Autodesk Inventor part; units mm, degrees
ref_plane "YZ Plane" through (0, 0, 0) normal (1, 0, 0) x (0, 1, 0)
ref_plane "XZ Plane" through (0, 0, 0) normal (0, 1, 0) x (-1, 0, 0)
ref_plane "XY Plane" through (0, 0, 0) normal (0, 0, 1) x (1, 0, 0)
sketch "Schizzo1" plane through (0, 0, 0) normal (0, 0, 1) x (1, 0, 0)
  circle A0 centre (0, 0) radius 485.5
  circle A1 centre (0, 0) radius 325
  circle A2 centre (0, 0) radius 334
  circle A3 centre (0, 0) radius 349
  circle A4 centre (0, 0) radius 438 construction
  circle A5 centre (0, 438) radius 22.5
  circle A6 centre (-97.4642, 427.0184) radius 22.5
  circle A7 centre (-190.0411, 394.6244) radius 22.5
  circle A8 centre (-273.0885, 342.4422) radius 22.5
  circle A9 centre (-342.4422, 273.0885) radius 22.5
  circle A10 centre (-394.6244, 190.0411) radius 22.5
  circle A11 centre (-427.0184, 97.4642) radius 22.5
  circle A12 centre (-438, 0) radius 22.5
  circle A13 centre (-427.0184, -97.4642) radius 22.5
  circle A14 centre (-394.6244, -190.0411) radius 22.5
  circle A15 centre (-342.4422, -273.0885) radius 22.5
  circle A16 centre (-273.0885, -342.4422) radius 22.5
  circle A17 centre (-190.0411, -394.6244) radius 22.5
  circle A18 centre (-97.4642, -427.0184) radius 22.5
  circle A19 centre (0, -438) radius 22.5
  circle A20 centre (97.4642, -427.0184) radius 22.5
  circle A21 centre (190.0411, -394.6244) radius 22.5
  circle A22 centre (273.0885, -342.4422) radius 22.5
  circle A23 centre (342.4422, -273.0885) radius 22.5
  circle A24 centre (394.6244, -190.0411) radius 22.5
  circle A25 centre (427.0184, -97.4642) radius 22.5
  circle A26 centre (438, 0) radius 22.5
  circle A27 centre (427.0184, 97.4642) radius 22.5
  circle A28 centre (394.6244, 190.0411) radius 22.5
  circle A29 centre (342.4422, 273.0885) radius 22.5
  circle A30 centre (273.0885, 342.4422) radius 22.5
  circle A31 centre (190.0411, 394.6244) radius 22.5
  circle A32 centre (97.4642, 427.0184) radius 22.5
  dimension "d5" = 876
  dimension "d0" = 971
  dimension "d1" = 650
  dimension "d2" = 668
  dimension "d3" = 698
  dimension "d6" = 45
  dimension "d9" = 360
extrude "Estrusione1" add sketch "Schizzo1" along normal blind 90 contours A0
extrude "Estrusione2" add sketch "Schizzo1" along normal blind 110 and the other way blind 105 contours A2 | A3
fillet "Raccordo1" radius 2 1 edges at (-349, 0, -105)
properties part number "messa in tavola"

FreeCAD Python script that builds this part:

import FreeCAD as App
import Part
import Sketcher
Q = App.Units.Quantity


def edges_at(feature, points):
    """Names of the edges that pass closest to the given points."""
    edges = feature.Shape.Edges
    near = lambda p: min(range(len(edges)), key=lambda i: edges[i].distToShape(Part.Vertex(*p))[0])
    return sorted({f"Edge{near(p) + 1}" for p in points})

doc = App.newDocument("Part")
params = doc.addObject("Spreadsheet::Sheet", "Params")
for row, (alias, value) in enumerate([
    ("sketch1_diameter", "971 mm"),
    ("sketch1_diameter2", "45 mm"),
    ("sketch1_diameter3", "698 mm"),
    ("pad1_length", "90 mm"),
    ("sketch2_diameter", "698 mm"),
    ("sketch2_diameter2", "650 mm"),
    ("pad2_length", "110 mm"),
    ("pad2_length2", "105 mm"),
    ("fillet_radius", "2 mm"),
], start=1):
    params.set(f"A{row}", alias)
    params.set(f"B{row}", "=" + value)
    params.setAlias(f"B{row}", alias)

body = doc.addObject("PartDesign::Body", "Body")

sketch1 = body.newObject("Sketcher::SketchObject", "Sketch")
sketch1.AttachmentSupport = (doc.getObject("XY_Plane"), [""])
sketch1.MapMode = "FlatFace"
sketch1.addGeometry(Part.Circle(App.Vector(0, 0, 0), App.Vector(0, 0, 1), 485.5), False)
sketch1.addGeometry(Part.Circle(App.Vector(-273.0885, -342.4422, 0), App.Vector(0, 0, 1), 22.5), False)
sketch1.addGeometry(Part.Circle(App.Vector(-342.4422, -273.0885, 0), App.Vector(0, 0, 1), 22.5), False)
sketch1.addGeometry(Part.Circle(App.Vector(-190.0411, -394.6244, 0), App.Vector(0, 0, 1), 22.5), False)
sketch1.addGeometry(Part.Circle(App.Vector(-97.4642, -427.0184, 0), App.Vector(0, 0, 1), 22.5), False)
sketch1.addGeometry(Part.Circle(App.Vector(-394.6244, -190.0411, 0), App.Vector(0, 0, 1), 22.5), False)
sketch1.addGeometry(Part.Circle(App.Vector(-427.0184, -97.4642, 0), App.Vector(0, 0, 1), 22.5), False)
sketch1.addGeometry(Part.Circle(App.Vector(0, -438, 0), App.Vector(0, 0, 1), 22.5), False)
sketch1.addGeometry(Part.Circle(App.Vector(97.4642, -427.0184, 0), App.Vector(0, 0, 1), 22.5), False)
sketch1.addGeometry(Part.Circle(App.Vector(190.0411, -394.6244, 0), App.Vector(0, 0, 1), 22.5), False)
sketch1.addGeometry(Part.Circle(App.Vector(273.0885, -342.4422, 0), App.Vector(0, 0, 1), 22.5), False)
sketch1.addGeometry(Part.Circle(App.Vector(342.4422, -273.0885, 0), App.Vector(0, 0, 1), 22.5), False)
sketch1.addGeometry(Part.Circle(App.Vector(394.6244, -190.0411, 0), App.Vector(0, 0, 1), 22.5), False)
sketch1.addGeometry(Part.Circle(App.Vector(427.0184, -97.4642, 0), App.Vector(0, 0, 1), 22.5), False)
sketch1.addGeometry(Part.Circle(App.Vector(-438, 0, 0), App.Vector(0, 0, 1), 22.5), False)
sketch1.addGeometry(Part.Circle(App.Vector(-427.0184, 97.4642, 0), App.Vector(0, 0, 1), 22.5), False)
sketch1.addGeometry(Part.Circle(App.Vector(-394.6244, 190.0411, 0), App.Vector(0, 0, 1), 22.5), False)
sketch1.addGeometry(Part.Circle(App.Vector(-342.4422, 273.0885, 0), App.Vector(0, 0, 1), 22.5), False)
sketch1.addGeometry(Part.Circle(App.Vector(-273.0885, 342.4422, 0), App.Vector(0, 0, 1), 22.5), False)
sketch1.addGeometry(Part.Circle(App.Vector(-190.0411, 394.6244, 0), App.Vector(0, 0, 1), 22.5), False)
sketch1.addGeometry(Part.Circle(App.Vector(-97.4642, 427.0184, 0), App.Vector(0, 0, 1), 22.5), False)
sketch1.addGeometry(Part.Circle(App.Vector(0, 0, 0), App.Vector(0, 0, 1), 349), False)
sketch1.addGeometry(Part.Circle(App.Vector(438, 0, 0), App.Vector(0, 0, 1), 22.5), False)
sketch1.addGeometry(Part.Circle(App.Vector(427.0184, 97.4642, 0), App.Vector(0, 0, 1), 22.5), False)
sketch1.addGeometry(Part.Circle(App.Vector(394.6244, 190.0411, 0), App.Vector(0, 0, 1), 22.5), False)
sketch1.addGeometry(Part.Circle(App.Vector(0, 438, 0), App.Vector(0, 0, 1), 22.5), False)
sketch1.addGeometry(Part.Circle(App.Vector(97.4642, 427.0184, 0), App.Vector(0, 0, 1), 22.5), False)
sketch1.addGeometry(Part.Circle(App.Vector(190.0411, 394.6244, 0), App.Vector(0, 0, 1), 22.5), False)
sketch1.addGeometry(Part.Circle(App.Vector(342.4422, 273.0885, 0), App.Vector(0, 0, 1), 22.5), False)
sketch1.addGeometry(Part.Circle(App.Vector(273.0885, 342.4422, 0), App.Vector(0, 0, 1), 22.5), False)
sketch1.addConstraint(Sketcher.Constraint("Coincident", 0, 3, -1, 1))
sketch1.addConstraint(Sketcher.Constraint("Coincident", 21, 3, -1, 1))
sketch1.addConstraint(Sketcher.Constraint("Equal", 1, 2))
sketch1.addConstraint(Sketcher.Constraint("Equal", 2, 3))
sketch1.addConstraint(Sketcher.Constraint("Equal", 3, 4))
sketch1.addConstraint(Sketcher.Constraint("Equal", 4, 5))
sketch1.addConstraint(Sketcher.Constraint("Equal", 5, 6))
sketch1.addConstraint(Sketcher.Constraint("Equal", 6, 7))
sketch1.addConstraint(Sketcher.Constraint("Equal", 7, 8))
sketch1.addConstraint(Sketcher.Constraint("Equal", 8, 9))
sketch1.addConstraint(Sketcher.Constraint("Equal", 9, 10))
sketch1.addConstraint(Sketcher.Constraint("Equal", 10, 11))
sketch1.addConstraint(Sketcher.Constraint("Equal", 11, 12))
sketch1.addConstraint(Sketcher.Constraint("Equal", 12, 13))
sketch1.addConstraint(Sketcher.Constraint("Equal", 13, 14))
sketch1.addConstraint(Sketcher.Constraint("Equal", 14, 15))
sketch1.addConstraint(Sketcher.Constraint("Equal", 15, 16))
sketch1.addConstraint(Sketcher.Constraint("Equal", 16, 17))
sketch1.addConstraint(Sketcher.Constraint("Equal", 17, 18))
sketch1.addConstraint(Sketcher.Constraint("Equal", 18, 19))
sketch1.addConstraint(Sketcher.Constraint("Equal", 19, 20))
sketch1.addConstraint(Sketcher.Constraint("Equal", 20, 22))
sketch1.addConstraint(Sketcher.Constraint("Equal", 22, 23))
sketch1.addConstraint(Sketcher.Constraint("Equal", 23, 24))
sketch1.addConstraint(Sketcher.Constraint("Equal", 24, 25))
sketch1.addConstraint(Sketcher.Constraint("Equal", 25, 26))
sketch1.addConstraint(Sketcher.Constraint("Equal", 26, 27))
sketch1.addConstraint(Sketcher.Constraint("Equal", 27, 28))
sketch1.addConstraint(Sketcher.Constraint("Equal", 28, 29))
sketch1.addConstraint(Sketcher.Constraint("Symmetric", 13, 3, 15, 3, -1, 1))
sketch1.addConstraint(Sketcher.Constraint("Symmetric", 12, 3, 16, 3, -1, 1))
sketch1.addConstraint(Sketcher.Constraint("Symmetric", 11, 3, 17, 3, -1, 1))
sketch1.addConstraint(Sketcher.Constraint("Symmetric", 10, 3, 18, 3, -1, 1))
sketch1.addConstraint(Sketcher.Constraint("Symmetric", 9, 3, 19, 3, -1, 1))
sketch1.addConstraint(Sketcher.Constraint("Symmetric", 8, 3, 20, 3, -1, 1))
sketch1.addConstraint(Sketcher.Constraint("Symmetric", 14, 3, 22, 3, -1, 1))
sketch1.addConstraint(Sketcher.Constraint("Symmetric", 6, 3, 23, 3, -1, 1))
sketch1.addConstraint(Sketcher.Constraint("Symmetric", 5, 3, 24, 3, -1, 1))
sketch1.addConstraint(Sketcher.Constraint("Symmetric", 7, 3, 25, 3, -1, 1))
sketch1.addConstraint(Sketcher.Constraint("Symmetric", 4, 3, 26, 3, -1, 1))
sketch1.addConstraint(Sketcher.Constraint("Symmetric", 3, 3, 27, 3, -1, 1))
sketch1.addConstraint(Sketcher.Constraint("Symmetric", 2, 3, 28, 3, -1, 1))
sketch1.addConstraint(Sketcher.Constraint("Symmetric", 1, 3, 29, 3, -1, 1))
sketch1.addConstraint(Sketcher.Constraint("Symmetric", 4, 3, 8, 3, -2))
sketch1.addConstraint(Sketcher.Constraint("Symmetric", 3, 3, 9, 3, -2))
sketch1.addConstraint(Sketcher.Constraint("Symmetric", 1, 3, 10, 3, -2))
sketch1.addConstraint(Sketcher.Constraint("Symmetric", 2, 3, 11, 3, -2))
sketch1.addConstraint(Sketcher.Constraint("Symmetric", 5, 3, 12, 3, -2))
sketch1.addConstraint(Sketcher.Constraint("Symmetric", 6, 3, 13, 3, -2))
sketch1.addConstraint(Sketcher.Constraint("PointOnObject", 7, 3, -2))
sketch1.addConstraint(Sketcher.Constraint("PointOnObject", 14, 3, -1))
sketch1.addConstraint(Sketcher.Constraint("Diameter", 0, Q("971 mm")))
sketch1.addConstraint(Sketcher.Constraint("Diameter", 1, Q("45 mm")))
sketch1.addConstraint(Sketcher.Constraint("Diameter", 21, Q("698 mm")))
sketch1.addConstraint(Sketcher.Constraint("DistanceY", 7, 3, -1, 1, Q("438 mm")))
sketch1.addConstraint(Sketcher.Constraint("DistanceX", 14, 3, -1, 1, Q("438 mm")))
sketch1.addConstraint(Sketcher.Constraint("DistanceY", 4, 3, 2, 3, Q("153.93 mm")))
sketch1.addConstraint(Sketcher.Constraint("DistanceX", 6, 3, 1, 3, Q("153.93 mm")))
sketch1.addConstraint(Sketcher.Constraint("DistanceX", 3, 3, -1, 1, Q("190.041 mm")))
sketch1.addConstraint(Sketcher.Constraint("DistanceY", 5, 3, -1, 1, Q("190.041 mm")))
sketch1.addConstraint(Sketcher.Constraint("DistanceX", 2, 3, 3, 3, Q("152.401 mm")))
sketch1.addConstraint(Sketcher.Constraint("DistanceY", 3, 3, 2, 3, Q("121.536 mm")))
sketch1.addConstraint(Sketcher.Constraint("DistanceX", 3, 3, 4, 3, Q("92.577 mm")))
sketch1.addConstraint(Sketcher.Constraint("DistanceX", 5, 3, 1, 3, Q("121.536 mm")))
sketch1.addConstraint(Sketcher.Constraint("DistanceY", 1, 3, 5, 3, Q("152.401 mm")))
sketch1.addConstraint(Sketcher.Constraint("DistanceY", 5, 3, 6, 3, Q("92.577 mm")))
sketch1.addConstraint(Sketcher.Constraint("DistanceX", 1, 3, -1, 1, Q("273.0885 mm")))
sketch1.addConstraint(Sketcher.Constraint("DistanceY", 2, 3, -1, 1, Q("273.0885 mm")))
sketch1.setExpression("Constraints[51]", "Params.sketch1_diameter")
sketch1.setExpression("Constraints[52]", "Params.sketch1_diameter2")
sketch1.setExpression("Constraints[53]", "Params.sketch1_diameter3")
pad1 = body.newObject("PartDesign::Pad", "Pad")
pad1.Profile = sketch1
pad1.setExpression("Length", "Params.pad1_length")

sketch2 = body.newObject("Sketcher::SketchObject", "Sketch001")
sketch2.AttachmentSupport = (doc.getObject("XY_Plane"), [""])
sketch2.MapMode = "FlatFace"
sketch2.addGeometry(Part.Circle(App.Vector(0, 0, 0), App.Vector(0, 0, 1), 349), False)
sketch2.addGeometry(Part.Circle(App.Vector(0, 0, 0), App.Vector(0, 0, 1), 325), False)
sketch2.addConstraint(Sketcher.Constraint("Coincident", 0, 3, -1, 1))
sketch2.addConstraint(Sketcher.Constraint("Coincident", 1, 3, -1, 1))
sketch2.addConstraint(Sketcher.Constraint("Diameter", 0, Q("698 mm")))
sketch2.addConstraint(Sketcher.Constraint("Diameter", 1, Q("650 mm")))
sketch2.setExpression("Constraints[2]", "Params.sketch2_diameter")
sketch2.setExpression("Constraints[3]", "Params.sketch2_diameter2")
pad2 = body.newObject("PartDesign::Pad", "Pad001")
pad2.Profile = sketch2
pad2.Type = "TwoLengths"
pad2.setExpression("Length", "Params.pad2_length")
pad2.setExpression("Length2", "Params.pad2_length2")
doc.recompute()

fillet = body.newObject("PartDesign::Fillet", "Fillet")
fillet.Base = (pad2, edges_at(pad2, [(-349, 0, -105)]))
fillet.setExpression("Radius", "Params.fillet_radius")

doc.recompute()
